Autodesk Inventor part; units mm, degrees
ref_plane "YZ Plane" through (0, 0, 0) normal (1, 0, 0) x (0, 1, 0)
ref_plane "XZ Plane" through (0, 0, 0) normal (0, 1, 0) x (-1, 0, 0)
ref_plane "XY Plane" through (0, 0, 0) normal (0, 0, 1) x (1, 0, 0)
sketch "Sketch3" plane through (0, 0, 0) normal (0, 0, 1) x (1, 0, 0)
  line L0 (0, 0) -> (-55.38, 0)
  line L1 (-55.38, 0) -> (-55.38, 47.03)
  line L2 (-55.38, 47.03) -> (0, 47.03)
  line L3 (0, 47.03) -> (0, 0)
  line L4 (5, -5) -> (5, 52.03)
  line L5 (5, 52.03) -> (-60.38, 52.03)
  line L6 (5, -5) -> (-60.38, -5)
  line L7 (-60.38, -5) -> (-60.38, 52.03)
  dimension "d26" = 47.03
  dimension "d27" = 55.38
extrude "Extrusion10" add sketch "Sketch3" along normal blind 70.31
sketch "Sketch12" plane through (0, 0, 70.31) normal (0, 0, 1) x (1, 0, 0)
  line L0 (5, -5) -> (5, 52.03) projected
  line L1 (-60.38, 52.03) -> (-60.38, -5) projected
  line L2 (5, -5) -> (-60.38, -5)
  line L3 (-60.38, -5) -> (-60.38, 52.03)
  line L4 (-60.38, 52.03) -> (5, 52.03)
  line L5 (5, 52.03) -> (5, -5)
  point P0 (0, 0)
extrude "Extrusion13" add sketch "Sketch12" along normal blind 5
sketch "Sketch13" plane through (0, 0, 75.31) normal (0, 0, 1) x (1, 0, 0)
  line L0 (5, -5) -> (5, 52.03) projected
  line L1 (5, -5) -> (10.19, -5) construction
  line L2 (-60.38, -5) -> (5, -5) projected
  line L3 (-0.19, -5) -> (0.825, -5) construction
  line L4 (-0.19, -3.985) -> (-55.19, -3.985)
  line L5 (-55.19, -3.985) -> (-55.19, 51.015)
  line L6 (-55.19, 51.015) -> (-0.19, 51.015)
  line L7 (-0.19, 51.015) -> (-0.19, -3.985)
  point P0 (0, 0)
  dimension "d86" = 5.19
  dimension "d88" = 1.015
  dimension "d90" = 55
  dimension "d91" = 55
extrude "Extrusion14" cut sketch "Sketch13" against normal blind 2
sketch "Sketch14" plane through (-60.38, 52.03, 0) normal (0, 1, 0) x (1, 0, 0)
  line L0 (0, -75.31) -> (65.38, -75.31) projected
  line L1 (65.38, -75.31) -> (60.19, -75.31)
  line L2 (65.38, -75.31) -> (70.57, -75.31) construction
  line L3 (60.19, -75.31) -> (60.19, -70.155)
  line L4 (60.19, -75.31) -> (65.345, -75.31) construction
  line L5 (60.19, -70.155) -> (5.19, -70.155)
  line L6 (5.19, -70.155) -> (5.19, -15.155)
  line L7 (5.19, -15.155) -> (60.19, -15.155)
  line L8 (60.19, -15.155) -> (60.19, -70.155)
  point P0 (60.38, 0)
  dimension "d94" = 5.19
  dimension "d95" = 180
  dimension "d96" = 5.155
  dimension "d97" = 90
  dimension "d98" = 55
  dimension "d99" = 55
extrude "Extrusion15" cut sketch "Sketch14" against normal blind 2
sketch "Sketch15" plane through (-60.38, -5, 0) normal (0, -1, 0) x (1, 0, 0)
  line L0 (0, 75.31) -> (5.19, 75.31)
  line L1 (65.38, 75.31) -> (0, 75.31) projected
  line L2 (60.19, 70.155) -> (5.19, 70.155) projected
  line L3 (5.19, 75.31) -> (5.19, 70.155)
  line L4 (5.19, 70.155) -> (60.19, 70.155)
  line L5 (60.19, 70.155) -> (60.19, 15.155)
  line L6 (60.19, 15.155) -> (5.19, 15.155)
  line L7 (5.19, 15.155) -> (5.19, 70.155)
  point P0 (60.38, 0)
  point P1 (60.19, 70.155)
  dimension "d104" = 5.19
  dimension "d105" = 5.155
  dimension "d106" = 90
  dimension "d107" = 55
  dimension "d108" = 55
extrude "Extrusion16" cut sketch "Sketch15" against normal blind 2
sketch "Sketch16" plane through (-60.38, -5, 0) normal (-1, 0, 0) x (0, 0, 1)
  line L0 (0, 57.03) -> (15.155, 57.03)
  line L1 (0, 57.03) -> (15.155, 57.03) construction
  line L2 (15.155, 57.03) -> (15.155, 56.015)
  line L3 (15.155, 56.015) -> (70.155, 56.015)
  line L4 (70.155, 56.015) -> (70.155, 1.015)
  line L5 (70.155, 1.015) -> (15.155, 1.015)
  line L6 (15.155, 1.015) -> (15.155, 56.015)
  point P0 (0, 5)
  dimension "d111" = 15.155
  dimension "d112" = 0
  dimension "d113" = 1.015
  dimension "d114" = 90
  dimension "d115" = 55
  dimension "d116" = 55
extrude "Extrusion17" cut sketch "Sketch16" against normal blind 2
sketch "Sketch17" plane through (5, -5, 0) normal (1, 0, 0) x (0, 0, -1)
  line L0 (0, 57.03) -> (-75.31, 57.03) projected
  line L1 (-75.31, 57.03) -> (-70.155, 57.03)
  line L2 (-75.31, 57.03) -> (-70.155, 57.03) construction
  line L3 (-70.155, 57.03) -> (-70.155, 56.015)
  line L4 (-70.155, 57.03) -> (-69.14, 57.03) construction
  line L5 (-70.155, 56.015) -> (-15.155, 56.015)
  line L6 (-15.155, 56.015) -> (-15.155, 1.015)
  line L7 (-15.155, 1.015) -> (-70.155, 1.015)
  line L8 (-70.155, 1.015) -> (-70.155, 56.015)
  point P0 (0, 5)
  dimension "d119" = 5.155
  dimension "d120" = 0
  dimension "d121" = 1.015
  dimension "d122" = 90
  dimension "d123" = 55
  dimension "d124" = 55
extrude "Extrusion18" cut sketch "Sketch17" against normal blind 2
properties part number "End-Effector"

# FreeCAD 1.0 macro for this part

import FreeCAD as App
import Part
import Sketcher
from FreeCAD import Vector

doc = App.newDocument("Part")
params = doc.addObject("Spreadsheet::Sheet", "Params")
for row, (alias, value) in enumerate([
    ("sketch1_width", "55.38 mm"),
    ("sketch1_height", "47.03 mm"),
    ("pad1_length", "70.31 mm"),
    ("sketch2_width", "65.38 mm"),
    ("sketch2_height", "57.03 mm"),
    ("pad2_length", "5 mm"),
    ("sketch3_width", "55 mm"),
    ("pocket1_length", "2 mm"),
    ("sketch4_width", "55 mm"),
    ("pocket2_length", "2 mm"),
    ("sketch5_width", "55 mm"),
    ("pocket3_length", "2 mm"),
    ("sketch6_width", "55 mm"),
    ("pocket4_length", "2 mm"),
    ("sketch7_width", "55 mm"),
    ("pocket5_length", "2 mm"),
], start=1):
    params.set(f"A{row}", alias)
    params.set(f"B{row}", "=" + value)
    params.setAlias(f"B{row}", alias)

body = doc.addObject("PartDesign::Body", "Body")

# Sketch on XY plane
sketch1 = doc.addObject("Sketcher::SketchObject", "Sketch")
body.addObject(sketch1)
sketch1.AttachmentSupport = (doc.XY_Plane, [""])
sketch1.MapMode = "FlatFace"
sketch1.addGeometry([
    Part.LineSegment(Vector(-60.38, -5, 0), Vector(5, -5, 0)),  # 0
    Part.LineSegment(Vector(5, -5, 0), Vector(5, 52.03, 0)),  # 1
    Part.LineSegment(Vector(5, 52.03, 0), Vector(-60.38, 52.03, 0)),  # 2
    Part.LineSegment(Vector(-60.38, 52.03, 0), Vector(-60.38, -5, 0)),  # 3
    Part.LineSegment(Vector(0, 47.03, 0), Vector(0, 0, 0)),  # 4
    Part.LineSegment(Vector(0, 0, 0), Vector(-55.38, 0, 0)),  # 5
    Part.LineSegment(Vector(-55.38, 0, 0), Vector(-55.38, 47.03, 0)),  # 6
    Part.LineSegment(Vector(-55.38, 47.03, 0), Vector(0, 47.03, 0)),  # 7
], False)
sketch1.addConstraint([
    Sketcher.Constraint("Coincident", 0, 2, 1, 1),
    Sketcher.Constraint("Coincident", 1, 2, 2, 1),
    Sketcher.Constraint("Coincident", 2, 2, 3, 1),
    Sketcher.Constraint("Coincident", 3, 2, 0, 1),
    Sketcher.Constraint("Coincident", 4, 2, 5, 1),
    Sketcher.Constraint("Coincident", 5, 2, 6, 1),
    Sketcher.Constraint("Coincident", 6, 2, 7, 1),
    Sketcher.Constraint("Coincident", 7, 2, 4, 1),
    Sketcher.Constraint("Horizontal", 0),
    Sketcher.Constraint("Vertical", 1),
    Sketcher.Constraint("Horizontal", 2),
    Sketcher.Constraint("Vertical", 3),
    Sketcher.Constraint("Vertical", 4),
    Sketcher.Constraint("Horizontal", 5),
    Sketcher.Constraint("Vertical", 6),
    Sketcher.Constraint("Horizontal", 7),
    Sketcher.Constraint("Coincident", 4, 2, -1, 1),
    Sketcher.Constraint("DistanceX", 5, 2, 5, 1, 55.38),
    Sketcher.Constraint("DistanceY", 4, 2, 4, 1, 47.03),
    Sketcher.Constraint("DistanceX", -1, 1, 0, 2, 5.0),
    Sketcher.Constraint("DistanceY", 0, 2, -1, 1, 5.0),
    Sketcher.Constraint("DistanceX", 3, 2, 5, 2, 5.0),
    Sketcher.Constraint("DistanceY", 6, 2, 2, 2, 5.0),
])
sketch1.setExpression("Constraints[17]", "Params.sketch1_width")
sketch1.setExpression("Constraints[18]", "Params.sketch1_height")
pad1 = doc.addObject("PartDesign::Pad", "Pad")
body.addObject(pad1)
pad1.Profile = sketch1
pad1.setExpression("Length", "Params.pad1_length")

# Sketch on XY plane
sketch2 = doc.addObject("Sketcher::SketchObject", "Sketch001")
body.addObject(sketch2)
sketch2.AttachmentSupport = (doc.XY_Plane, [""])
sketch2.MapMode = "FlatFace"
sketch2.AttachmentOffset = App.Placement(Vector(0, 0, 70.31), App.Rotation())
sketch2.addGeometry([
    Part.LineSegment(Vector(-60.38, -5, 0), Vector(5, -5, 0)),
    Part.LineSegment(Vector(5, -5, 0), Vector(5, 52.03, 0)),
    Part.LineSegment(Vector(5, 52.03, 0), Vector(-60.38, 52.03, 0)),
    Part.LineSegment(Vector(-60.38, 52.03, 0), Vector(-60.38, -5, 0)),
], False)
sketch2.addConstraint([
    Sketcher.Constraint("Coincident", 0, 2, 1, 1),
    Sketcher.Constraint("Coincident", 1, 2, 2, 1),
    Sketcher.Constraint("Coincident", 2, 2, 3, 1),
    Sketcher.Constraint("Coincident", 3, 2, 0, 1),
    Sketcher.Constraint("Horizontal", 0),
    Sketcher.Constraint("Vertical", 1),
    Sketcher.Constraint("Horizontal", 2),
    Sketcher.Constraint("Vertical", 3),
    Sketcher.Constraint("DistanceX", -1, 1, 0, 2, 5.0),
    Sketcher.Constraint("DistanceY", 0, 2, -1, 1, 5.0),
    Sketcher.Constraint("DistanceX", 0, 1, 0, 2, 65.38),
    Sketcher.Constraint("DistanceY", 1, 1, 1, 2, 57.03),
])
sketch2.setExpression("Constraints[10]", "Params.sketch2_width")
sketch2.setExpression("Constraints[11]", "Params.sketch2_height")
pad2 = doc.addObject("PartDesign::Pad", "Pad001")
body.addObject(pad2)
pad2.Profile = sketch2
pad2.setExpression("Length", "Params.pad2_length")

# Sketch on XY plane
sketch3 = doc.addObject("Sketcher::SketchObject", "Sketch002")
body.addObject(sketch3)
sketch3.AttachmentSupport = (doc.XY_Plane, [""])
sketch3.MapMode = "FlatFace"
sketch3.AttachmentOffset = App.Placement(Vector(0, 0, 75.31), App.Rotation())
sketch3.addGeometry([
    Part.LineSegment(Vector(-55.19, -3.985, 0), Vector(-0.19, -3.985, 0)),
    Part.LineSegment(Vector(-0.19, -3.985, 0), Vector(-0.19, 51.015, 0)),
    Part.LineSegment(Vector(-0.19, 51.015, 0), Vector(-55.19, 51.015, 0)),
    Part.LineSegment(Vector(-55.19, 51.015, 0), Vector(-55.19, -3.985, 0)),
], False)
sketch3.addConstraint([
    Sketcher.Constraint("Coincident", 0, 2, 1, 1),
    Sketcher.Constraint("Coincident", 1, 2, 2, 1),
    Sketcher.Constraint("Coincident", 2, 2, 3, 1),
    Sketcher.Constraint("Coincident", 3, 2, 0, 1),
    Sketcher.Constraint("Horizontal", 0),
    Sketcher.Constraint("Vertical", 1),
    Sketcher.Constraint("Horizontal", 2),
    Sketcher.Constraint("Vertical", 3),
    Sketcher.Constraint("Equal", 2, 1),
    Sketcher.Constraint("DistanceX", 0, 1, 0, 2, 55.0),
    Sketcher.Constraint("DistanceX", 0, 2, -1, 1, 0.19),
    Sketcher.Constraint("DistanceY", 0, 2, -1, 1, 3.985),
])
sketch3.setExpression("Constraints[9]", "Params.sketch3_width")
pocket1 = doc.addObject("PartDesign::Pocket", "Pocket")
body.addObject(pocket1)
pocket1.Profile = sketch3
pocket1.setExpression("Length", "Params.pocket1_length")

# Sketch on XZ plane
sketch4 = doc.addObject("Sketcher::SketchObject", "Sketch003")
body.addObject(sketch4)
sketch4.AttachmentSupport = (doc.XZ_Plane, [""])
sketch4.MapMode = "FlatFace"
sketch4.AttachmentOffset = App.Placement(Vector(0, 0, -52.03), App.Rotation())
sketch4.addGeometry([
    Part.LineSegment(Vector(-55.19, 70.155, 0), Vector(-0.19, 70.155, 0)),
    Part.LineSegment(Vector(-0.19, 70.155, 0), Vector(-0.19, 15.155, 0)),
    Part.LineSegment(Vector(-0.19, 15.155, 0), Vector(-55.19, 15.155, 0)),
    Part.LineSegment(Vector(-55.19, 15.155, 0), Vector(-55.19, 70.155, 0)),
], False)
sketch4.addConstraint([
    Sketcher.Constraint("Coincident", 0, 2, 1, 1),
    Sketcher.Constraint("Coincident", 1, 2, 2, 1),
    Sketcher.Constraint("Coincident", 2, 2, 3, 1),
    Sketcher.Constraint("Coincident", 3, 2, 0, 1),
    Sketcher.Constraint("Horizontal", 0),
    Sketcher.Constraint("Vertical", 1),
    Sketcher.Constraint("Horizontal", 2),
    Sketcher.Constraint("Vertical", 3),
    Sketcher.Constraint("Equal", 2, 1),
    Sketcher.Constraint("DistanceX", 0, 1, 0, 2, 55.0),
    Sketcher.Constraint("DistanceX", 0, 2, -1, 1, 0.19),
    Sketcher.Constraint("DistanceY", -1, 1, 0, 2, 70.155),
])
sketch4.setExpression("Constraints[9]", "Params.sketch4_width")
pocket2 = doc.addObject("PartDesign::Pocket", "Pocket001")
body.addObject(pocket2)
pocket2.Profile = sketch4
pocket2.setExpression("Length", "Params.pocket2_length")
pocket2.Reversed = True

# Sketch on XZ plane
sketch5 = doc.addObject("Sketcher::SketchObject", "Sketch004")
body.addObject(sketch5)
sketch5.AttachmentSupport = (doc.XZ_Plane, [""])
sketch5.MapMode = "FlatFace"
sketch5.AttachmentOffset = App.Placement(Vector(0, 0, 5), App.Rotation())
sketch5.addGeometry([
    Part.LineSegment(Vector(-0.19, 15.155, 0), Vector(-0.19, 70.155, 0)),
    Part.LineSegment(Vector(-0.19, 70.155, 0), Vector(-55.19, 70.155, 0)),
    Part.LineSegment(Vector(-55.19, 70.155, 0), Vector(-55.19, 15.155, 0)),
    Part.LineSegment(Vector(-55.19, 15.155, 0), Vector(-0.19, 15.155, 0)),
], False)
sketch5.addConstraint([
    Sketcher.Constraint("Coincident", 0, 2, 1, 1),
    Sketcher.Constraint("Coincident", 1, 2, 2, 1),
    Sketcher.Constraint("Coincident", 2, 2, 3, 1),
    Sketcher.Constraint("Coincident", 3, 2, 0, 1),
    Sketcher.Constraint("Vertical", 0),
    Sketcher.Constraint("Horizontal", 1),
    Sketcher.Constraint("Vertical", 2),
    Sketcher.Constraint("Horizontal", 3),
    Sketcher.Constraint("Equal", 3, 0),
    Sketcher.Constraint("DistanceX", 1, 2, 1, 1, 55.0),
    Sketcher.Constraint("DistanceX", 0, 2, -1, 1, 0.19),
    Sketcher.Constraint("DistanceY", -1, 1, 0, 2, 70.155),
])
sketch5.setExpression("Constraints[9]", "Params.sketch5_width")
pocket3 = doc.addObject("PartDesign::Pocket", "Pocket002")
body.addObject(pocket3)
pocket3.Profile = sketch5
pocket3.setExpression("Length", "Params.pocket3_length")

# Sketch on YZ plane
sketch6 = doc.addObject("Sketcher::SketchObject", "Sketch005")
body.addObject(sketch6)
sketch6.AttachmentSupport = (doc.YZ_Plane, [""])
sketch6.MapMode = "FlatFace"
sketch6.AttachmentOffset = App.Placement(Vector(0, 0, -60.38), App.Rotation())
sketch6.addGeometry([
    Part.LineSegment(Vector(51.015, 70.155, 0), Vector(51.015, 15.155, 0)),
    Part.LineSegment(Vector(51.015, 15.155, 0), Vector(-3.985, 15.155, 0)),
    Part.LineSegment(Vector(-3.985, 15.155, 0), Vector(-3.985, 70.155, 0)),
    Part.LineSegment(Vector(-3.985, 70.155, 0), Vector(51.015, 70.155, 0)),
], False)
sketch6.addConstraint([
    Sketcher.Constraint("Coincident", 0, 2, 1, 1),
    Sketcher.Constraint("Coincident", 1, 2, 2, 1),
    Sketcher.Constraint("Coincident", 2, 2, 3, 1),
    Sketcher.Constraint("Coincident", 3, 2, 0, 1),
    Sketcher.Constraint("Vertical", 0),
    Sketcher.Constraint("Horizontal", 1),
    Sketcher.Constraint("Vertical", 2),
    Sketcher.Constraint("Horizontal", 3),
    Sketcher.Constraint("Equal", 3, 0),
    Sketcher.Constraint("DistanceX", 1, 2, 1, 1, 55.0),
    Sketcher.Constraint("DistanceY", -1, 1, 0, 2, 15.155),
    Sketcher.Constraint("DistanceX", -1, 1, 0, 2, 51.015),
])
sketch6.setExpression("Constraints[9]", "Params.sketch6_width")
pocket4 = doc.addObject("PartDesign::Pocket", "Pocket003")
body.addObject(pocket4)
pocket4.Profile = sketch6
pocket4.setExpression("Length", "Params.pocket4_length")
pocket4.Reversed = True

# Sketch on YZ plane
sketch7 = doc.addObject("Sketcher::SketchObject", "Sketch006")
body.addObject(sketch7)
sketch7.AttachmentSupport = (doc.YZ_Plane, [""])
sketch7.MapMode = "FlatFace"
sketch7.AttachmentOffset = App.Placement(Vector(0, 0, 5), App.Rotation())
sketch7.addGeometry([
    Part.LineSegment(Vector(51.015, 15.155, 0), Vector(51.015, 70.155, 0)),
    Part.LineSegment(Vector(51.015, 70.155, 0), Vector(-3.985, 70.155, 0)),
    Part.LineSegment(Vector(-3.985, 70.155, 0), Vector(-3.985, 15.155, 0)),
    Part.LineSegment(Vector(-3.985, 15.155, 0), Vector(51.015, 15.155, 0)),
], False)
sketch7.addConstraint([
    Sketcher.Constraint("Coincident", 0, 2, 1, 1),
    Sketcher.Constraint("Coincident", 1, 2, 2, 1),
    Sketcher.Constraint("Coincident", 2, 2, 3, 1),
    Sketcher.Constraint("Coincident", 3, 2, 0, 1),
    Sketcher.Constraint("Vertical", 0),
    Sketcher.Constraint("Horizontal", 1),
    Sketcher.Constraint("Vertical", 2),
    Sketcher.Constraint("Horizontal", 3),
    Sketcher.Constraint("Equal", 3, 0),
    Sketcher.Constraint("DistanceX", 1, 2, 1, 1, 55.0),
    Sketcher.Constraint("DistanceX", -1, 1, 0, 2, 51.015),
    Sketcher.Constraint("DistanceY", -1, 1, 0, 2, 70.155),
])
sketch7.setExpression("Constraints[9]", "Params.sketch7_width")
pocket5 = doc.addObject("PartDesign::Pocket", "Pocket004")
body.addObject(pocket5)
pocket5.Profile = sketch7
pocket5.setExpression("Length", "Params.pocket5_length")

doc.recompute()
